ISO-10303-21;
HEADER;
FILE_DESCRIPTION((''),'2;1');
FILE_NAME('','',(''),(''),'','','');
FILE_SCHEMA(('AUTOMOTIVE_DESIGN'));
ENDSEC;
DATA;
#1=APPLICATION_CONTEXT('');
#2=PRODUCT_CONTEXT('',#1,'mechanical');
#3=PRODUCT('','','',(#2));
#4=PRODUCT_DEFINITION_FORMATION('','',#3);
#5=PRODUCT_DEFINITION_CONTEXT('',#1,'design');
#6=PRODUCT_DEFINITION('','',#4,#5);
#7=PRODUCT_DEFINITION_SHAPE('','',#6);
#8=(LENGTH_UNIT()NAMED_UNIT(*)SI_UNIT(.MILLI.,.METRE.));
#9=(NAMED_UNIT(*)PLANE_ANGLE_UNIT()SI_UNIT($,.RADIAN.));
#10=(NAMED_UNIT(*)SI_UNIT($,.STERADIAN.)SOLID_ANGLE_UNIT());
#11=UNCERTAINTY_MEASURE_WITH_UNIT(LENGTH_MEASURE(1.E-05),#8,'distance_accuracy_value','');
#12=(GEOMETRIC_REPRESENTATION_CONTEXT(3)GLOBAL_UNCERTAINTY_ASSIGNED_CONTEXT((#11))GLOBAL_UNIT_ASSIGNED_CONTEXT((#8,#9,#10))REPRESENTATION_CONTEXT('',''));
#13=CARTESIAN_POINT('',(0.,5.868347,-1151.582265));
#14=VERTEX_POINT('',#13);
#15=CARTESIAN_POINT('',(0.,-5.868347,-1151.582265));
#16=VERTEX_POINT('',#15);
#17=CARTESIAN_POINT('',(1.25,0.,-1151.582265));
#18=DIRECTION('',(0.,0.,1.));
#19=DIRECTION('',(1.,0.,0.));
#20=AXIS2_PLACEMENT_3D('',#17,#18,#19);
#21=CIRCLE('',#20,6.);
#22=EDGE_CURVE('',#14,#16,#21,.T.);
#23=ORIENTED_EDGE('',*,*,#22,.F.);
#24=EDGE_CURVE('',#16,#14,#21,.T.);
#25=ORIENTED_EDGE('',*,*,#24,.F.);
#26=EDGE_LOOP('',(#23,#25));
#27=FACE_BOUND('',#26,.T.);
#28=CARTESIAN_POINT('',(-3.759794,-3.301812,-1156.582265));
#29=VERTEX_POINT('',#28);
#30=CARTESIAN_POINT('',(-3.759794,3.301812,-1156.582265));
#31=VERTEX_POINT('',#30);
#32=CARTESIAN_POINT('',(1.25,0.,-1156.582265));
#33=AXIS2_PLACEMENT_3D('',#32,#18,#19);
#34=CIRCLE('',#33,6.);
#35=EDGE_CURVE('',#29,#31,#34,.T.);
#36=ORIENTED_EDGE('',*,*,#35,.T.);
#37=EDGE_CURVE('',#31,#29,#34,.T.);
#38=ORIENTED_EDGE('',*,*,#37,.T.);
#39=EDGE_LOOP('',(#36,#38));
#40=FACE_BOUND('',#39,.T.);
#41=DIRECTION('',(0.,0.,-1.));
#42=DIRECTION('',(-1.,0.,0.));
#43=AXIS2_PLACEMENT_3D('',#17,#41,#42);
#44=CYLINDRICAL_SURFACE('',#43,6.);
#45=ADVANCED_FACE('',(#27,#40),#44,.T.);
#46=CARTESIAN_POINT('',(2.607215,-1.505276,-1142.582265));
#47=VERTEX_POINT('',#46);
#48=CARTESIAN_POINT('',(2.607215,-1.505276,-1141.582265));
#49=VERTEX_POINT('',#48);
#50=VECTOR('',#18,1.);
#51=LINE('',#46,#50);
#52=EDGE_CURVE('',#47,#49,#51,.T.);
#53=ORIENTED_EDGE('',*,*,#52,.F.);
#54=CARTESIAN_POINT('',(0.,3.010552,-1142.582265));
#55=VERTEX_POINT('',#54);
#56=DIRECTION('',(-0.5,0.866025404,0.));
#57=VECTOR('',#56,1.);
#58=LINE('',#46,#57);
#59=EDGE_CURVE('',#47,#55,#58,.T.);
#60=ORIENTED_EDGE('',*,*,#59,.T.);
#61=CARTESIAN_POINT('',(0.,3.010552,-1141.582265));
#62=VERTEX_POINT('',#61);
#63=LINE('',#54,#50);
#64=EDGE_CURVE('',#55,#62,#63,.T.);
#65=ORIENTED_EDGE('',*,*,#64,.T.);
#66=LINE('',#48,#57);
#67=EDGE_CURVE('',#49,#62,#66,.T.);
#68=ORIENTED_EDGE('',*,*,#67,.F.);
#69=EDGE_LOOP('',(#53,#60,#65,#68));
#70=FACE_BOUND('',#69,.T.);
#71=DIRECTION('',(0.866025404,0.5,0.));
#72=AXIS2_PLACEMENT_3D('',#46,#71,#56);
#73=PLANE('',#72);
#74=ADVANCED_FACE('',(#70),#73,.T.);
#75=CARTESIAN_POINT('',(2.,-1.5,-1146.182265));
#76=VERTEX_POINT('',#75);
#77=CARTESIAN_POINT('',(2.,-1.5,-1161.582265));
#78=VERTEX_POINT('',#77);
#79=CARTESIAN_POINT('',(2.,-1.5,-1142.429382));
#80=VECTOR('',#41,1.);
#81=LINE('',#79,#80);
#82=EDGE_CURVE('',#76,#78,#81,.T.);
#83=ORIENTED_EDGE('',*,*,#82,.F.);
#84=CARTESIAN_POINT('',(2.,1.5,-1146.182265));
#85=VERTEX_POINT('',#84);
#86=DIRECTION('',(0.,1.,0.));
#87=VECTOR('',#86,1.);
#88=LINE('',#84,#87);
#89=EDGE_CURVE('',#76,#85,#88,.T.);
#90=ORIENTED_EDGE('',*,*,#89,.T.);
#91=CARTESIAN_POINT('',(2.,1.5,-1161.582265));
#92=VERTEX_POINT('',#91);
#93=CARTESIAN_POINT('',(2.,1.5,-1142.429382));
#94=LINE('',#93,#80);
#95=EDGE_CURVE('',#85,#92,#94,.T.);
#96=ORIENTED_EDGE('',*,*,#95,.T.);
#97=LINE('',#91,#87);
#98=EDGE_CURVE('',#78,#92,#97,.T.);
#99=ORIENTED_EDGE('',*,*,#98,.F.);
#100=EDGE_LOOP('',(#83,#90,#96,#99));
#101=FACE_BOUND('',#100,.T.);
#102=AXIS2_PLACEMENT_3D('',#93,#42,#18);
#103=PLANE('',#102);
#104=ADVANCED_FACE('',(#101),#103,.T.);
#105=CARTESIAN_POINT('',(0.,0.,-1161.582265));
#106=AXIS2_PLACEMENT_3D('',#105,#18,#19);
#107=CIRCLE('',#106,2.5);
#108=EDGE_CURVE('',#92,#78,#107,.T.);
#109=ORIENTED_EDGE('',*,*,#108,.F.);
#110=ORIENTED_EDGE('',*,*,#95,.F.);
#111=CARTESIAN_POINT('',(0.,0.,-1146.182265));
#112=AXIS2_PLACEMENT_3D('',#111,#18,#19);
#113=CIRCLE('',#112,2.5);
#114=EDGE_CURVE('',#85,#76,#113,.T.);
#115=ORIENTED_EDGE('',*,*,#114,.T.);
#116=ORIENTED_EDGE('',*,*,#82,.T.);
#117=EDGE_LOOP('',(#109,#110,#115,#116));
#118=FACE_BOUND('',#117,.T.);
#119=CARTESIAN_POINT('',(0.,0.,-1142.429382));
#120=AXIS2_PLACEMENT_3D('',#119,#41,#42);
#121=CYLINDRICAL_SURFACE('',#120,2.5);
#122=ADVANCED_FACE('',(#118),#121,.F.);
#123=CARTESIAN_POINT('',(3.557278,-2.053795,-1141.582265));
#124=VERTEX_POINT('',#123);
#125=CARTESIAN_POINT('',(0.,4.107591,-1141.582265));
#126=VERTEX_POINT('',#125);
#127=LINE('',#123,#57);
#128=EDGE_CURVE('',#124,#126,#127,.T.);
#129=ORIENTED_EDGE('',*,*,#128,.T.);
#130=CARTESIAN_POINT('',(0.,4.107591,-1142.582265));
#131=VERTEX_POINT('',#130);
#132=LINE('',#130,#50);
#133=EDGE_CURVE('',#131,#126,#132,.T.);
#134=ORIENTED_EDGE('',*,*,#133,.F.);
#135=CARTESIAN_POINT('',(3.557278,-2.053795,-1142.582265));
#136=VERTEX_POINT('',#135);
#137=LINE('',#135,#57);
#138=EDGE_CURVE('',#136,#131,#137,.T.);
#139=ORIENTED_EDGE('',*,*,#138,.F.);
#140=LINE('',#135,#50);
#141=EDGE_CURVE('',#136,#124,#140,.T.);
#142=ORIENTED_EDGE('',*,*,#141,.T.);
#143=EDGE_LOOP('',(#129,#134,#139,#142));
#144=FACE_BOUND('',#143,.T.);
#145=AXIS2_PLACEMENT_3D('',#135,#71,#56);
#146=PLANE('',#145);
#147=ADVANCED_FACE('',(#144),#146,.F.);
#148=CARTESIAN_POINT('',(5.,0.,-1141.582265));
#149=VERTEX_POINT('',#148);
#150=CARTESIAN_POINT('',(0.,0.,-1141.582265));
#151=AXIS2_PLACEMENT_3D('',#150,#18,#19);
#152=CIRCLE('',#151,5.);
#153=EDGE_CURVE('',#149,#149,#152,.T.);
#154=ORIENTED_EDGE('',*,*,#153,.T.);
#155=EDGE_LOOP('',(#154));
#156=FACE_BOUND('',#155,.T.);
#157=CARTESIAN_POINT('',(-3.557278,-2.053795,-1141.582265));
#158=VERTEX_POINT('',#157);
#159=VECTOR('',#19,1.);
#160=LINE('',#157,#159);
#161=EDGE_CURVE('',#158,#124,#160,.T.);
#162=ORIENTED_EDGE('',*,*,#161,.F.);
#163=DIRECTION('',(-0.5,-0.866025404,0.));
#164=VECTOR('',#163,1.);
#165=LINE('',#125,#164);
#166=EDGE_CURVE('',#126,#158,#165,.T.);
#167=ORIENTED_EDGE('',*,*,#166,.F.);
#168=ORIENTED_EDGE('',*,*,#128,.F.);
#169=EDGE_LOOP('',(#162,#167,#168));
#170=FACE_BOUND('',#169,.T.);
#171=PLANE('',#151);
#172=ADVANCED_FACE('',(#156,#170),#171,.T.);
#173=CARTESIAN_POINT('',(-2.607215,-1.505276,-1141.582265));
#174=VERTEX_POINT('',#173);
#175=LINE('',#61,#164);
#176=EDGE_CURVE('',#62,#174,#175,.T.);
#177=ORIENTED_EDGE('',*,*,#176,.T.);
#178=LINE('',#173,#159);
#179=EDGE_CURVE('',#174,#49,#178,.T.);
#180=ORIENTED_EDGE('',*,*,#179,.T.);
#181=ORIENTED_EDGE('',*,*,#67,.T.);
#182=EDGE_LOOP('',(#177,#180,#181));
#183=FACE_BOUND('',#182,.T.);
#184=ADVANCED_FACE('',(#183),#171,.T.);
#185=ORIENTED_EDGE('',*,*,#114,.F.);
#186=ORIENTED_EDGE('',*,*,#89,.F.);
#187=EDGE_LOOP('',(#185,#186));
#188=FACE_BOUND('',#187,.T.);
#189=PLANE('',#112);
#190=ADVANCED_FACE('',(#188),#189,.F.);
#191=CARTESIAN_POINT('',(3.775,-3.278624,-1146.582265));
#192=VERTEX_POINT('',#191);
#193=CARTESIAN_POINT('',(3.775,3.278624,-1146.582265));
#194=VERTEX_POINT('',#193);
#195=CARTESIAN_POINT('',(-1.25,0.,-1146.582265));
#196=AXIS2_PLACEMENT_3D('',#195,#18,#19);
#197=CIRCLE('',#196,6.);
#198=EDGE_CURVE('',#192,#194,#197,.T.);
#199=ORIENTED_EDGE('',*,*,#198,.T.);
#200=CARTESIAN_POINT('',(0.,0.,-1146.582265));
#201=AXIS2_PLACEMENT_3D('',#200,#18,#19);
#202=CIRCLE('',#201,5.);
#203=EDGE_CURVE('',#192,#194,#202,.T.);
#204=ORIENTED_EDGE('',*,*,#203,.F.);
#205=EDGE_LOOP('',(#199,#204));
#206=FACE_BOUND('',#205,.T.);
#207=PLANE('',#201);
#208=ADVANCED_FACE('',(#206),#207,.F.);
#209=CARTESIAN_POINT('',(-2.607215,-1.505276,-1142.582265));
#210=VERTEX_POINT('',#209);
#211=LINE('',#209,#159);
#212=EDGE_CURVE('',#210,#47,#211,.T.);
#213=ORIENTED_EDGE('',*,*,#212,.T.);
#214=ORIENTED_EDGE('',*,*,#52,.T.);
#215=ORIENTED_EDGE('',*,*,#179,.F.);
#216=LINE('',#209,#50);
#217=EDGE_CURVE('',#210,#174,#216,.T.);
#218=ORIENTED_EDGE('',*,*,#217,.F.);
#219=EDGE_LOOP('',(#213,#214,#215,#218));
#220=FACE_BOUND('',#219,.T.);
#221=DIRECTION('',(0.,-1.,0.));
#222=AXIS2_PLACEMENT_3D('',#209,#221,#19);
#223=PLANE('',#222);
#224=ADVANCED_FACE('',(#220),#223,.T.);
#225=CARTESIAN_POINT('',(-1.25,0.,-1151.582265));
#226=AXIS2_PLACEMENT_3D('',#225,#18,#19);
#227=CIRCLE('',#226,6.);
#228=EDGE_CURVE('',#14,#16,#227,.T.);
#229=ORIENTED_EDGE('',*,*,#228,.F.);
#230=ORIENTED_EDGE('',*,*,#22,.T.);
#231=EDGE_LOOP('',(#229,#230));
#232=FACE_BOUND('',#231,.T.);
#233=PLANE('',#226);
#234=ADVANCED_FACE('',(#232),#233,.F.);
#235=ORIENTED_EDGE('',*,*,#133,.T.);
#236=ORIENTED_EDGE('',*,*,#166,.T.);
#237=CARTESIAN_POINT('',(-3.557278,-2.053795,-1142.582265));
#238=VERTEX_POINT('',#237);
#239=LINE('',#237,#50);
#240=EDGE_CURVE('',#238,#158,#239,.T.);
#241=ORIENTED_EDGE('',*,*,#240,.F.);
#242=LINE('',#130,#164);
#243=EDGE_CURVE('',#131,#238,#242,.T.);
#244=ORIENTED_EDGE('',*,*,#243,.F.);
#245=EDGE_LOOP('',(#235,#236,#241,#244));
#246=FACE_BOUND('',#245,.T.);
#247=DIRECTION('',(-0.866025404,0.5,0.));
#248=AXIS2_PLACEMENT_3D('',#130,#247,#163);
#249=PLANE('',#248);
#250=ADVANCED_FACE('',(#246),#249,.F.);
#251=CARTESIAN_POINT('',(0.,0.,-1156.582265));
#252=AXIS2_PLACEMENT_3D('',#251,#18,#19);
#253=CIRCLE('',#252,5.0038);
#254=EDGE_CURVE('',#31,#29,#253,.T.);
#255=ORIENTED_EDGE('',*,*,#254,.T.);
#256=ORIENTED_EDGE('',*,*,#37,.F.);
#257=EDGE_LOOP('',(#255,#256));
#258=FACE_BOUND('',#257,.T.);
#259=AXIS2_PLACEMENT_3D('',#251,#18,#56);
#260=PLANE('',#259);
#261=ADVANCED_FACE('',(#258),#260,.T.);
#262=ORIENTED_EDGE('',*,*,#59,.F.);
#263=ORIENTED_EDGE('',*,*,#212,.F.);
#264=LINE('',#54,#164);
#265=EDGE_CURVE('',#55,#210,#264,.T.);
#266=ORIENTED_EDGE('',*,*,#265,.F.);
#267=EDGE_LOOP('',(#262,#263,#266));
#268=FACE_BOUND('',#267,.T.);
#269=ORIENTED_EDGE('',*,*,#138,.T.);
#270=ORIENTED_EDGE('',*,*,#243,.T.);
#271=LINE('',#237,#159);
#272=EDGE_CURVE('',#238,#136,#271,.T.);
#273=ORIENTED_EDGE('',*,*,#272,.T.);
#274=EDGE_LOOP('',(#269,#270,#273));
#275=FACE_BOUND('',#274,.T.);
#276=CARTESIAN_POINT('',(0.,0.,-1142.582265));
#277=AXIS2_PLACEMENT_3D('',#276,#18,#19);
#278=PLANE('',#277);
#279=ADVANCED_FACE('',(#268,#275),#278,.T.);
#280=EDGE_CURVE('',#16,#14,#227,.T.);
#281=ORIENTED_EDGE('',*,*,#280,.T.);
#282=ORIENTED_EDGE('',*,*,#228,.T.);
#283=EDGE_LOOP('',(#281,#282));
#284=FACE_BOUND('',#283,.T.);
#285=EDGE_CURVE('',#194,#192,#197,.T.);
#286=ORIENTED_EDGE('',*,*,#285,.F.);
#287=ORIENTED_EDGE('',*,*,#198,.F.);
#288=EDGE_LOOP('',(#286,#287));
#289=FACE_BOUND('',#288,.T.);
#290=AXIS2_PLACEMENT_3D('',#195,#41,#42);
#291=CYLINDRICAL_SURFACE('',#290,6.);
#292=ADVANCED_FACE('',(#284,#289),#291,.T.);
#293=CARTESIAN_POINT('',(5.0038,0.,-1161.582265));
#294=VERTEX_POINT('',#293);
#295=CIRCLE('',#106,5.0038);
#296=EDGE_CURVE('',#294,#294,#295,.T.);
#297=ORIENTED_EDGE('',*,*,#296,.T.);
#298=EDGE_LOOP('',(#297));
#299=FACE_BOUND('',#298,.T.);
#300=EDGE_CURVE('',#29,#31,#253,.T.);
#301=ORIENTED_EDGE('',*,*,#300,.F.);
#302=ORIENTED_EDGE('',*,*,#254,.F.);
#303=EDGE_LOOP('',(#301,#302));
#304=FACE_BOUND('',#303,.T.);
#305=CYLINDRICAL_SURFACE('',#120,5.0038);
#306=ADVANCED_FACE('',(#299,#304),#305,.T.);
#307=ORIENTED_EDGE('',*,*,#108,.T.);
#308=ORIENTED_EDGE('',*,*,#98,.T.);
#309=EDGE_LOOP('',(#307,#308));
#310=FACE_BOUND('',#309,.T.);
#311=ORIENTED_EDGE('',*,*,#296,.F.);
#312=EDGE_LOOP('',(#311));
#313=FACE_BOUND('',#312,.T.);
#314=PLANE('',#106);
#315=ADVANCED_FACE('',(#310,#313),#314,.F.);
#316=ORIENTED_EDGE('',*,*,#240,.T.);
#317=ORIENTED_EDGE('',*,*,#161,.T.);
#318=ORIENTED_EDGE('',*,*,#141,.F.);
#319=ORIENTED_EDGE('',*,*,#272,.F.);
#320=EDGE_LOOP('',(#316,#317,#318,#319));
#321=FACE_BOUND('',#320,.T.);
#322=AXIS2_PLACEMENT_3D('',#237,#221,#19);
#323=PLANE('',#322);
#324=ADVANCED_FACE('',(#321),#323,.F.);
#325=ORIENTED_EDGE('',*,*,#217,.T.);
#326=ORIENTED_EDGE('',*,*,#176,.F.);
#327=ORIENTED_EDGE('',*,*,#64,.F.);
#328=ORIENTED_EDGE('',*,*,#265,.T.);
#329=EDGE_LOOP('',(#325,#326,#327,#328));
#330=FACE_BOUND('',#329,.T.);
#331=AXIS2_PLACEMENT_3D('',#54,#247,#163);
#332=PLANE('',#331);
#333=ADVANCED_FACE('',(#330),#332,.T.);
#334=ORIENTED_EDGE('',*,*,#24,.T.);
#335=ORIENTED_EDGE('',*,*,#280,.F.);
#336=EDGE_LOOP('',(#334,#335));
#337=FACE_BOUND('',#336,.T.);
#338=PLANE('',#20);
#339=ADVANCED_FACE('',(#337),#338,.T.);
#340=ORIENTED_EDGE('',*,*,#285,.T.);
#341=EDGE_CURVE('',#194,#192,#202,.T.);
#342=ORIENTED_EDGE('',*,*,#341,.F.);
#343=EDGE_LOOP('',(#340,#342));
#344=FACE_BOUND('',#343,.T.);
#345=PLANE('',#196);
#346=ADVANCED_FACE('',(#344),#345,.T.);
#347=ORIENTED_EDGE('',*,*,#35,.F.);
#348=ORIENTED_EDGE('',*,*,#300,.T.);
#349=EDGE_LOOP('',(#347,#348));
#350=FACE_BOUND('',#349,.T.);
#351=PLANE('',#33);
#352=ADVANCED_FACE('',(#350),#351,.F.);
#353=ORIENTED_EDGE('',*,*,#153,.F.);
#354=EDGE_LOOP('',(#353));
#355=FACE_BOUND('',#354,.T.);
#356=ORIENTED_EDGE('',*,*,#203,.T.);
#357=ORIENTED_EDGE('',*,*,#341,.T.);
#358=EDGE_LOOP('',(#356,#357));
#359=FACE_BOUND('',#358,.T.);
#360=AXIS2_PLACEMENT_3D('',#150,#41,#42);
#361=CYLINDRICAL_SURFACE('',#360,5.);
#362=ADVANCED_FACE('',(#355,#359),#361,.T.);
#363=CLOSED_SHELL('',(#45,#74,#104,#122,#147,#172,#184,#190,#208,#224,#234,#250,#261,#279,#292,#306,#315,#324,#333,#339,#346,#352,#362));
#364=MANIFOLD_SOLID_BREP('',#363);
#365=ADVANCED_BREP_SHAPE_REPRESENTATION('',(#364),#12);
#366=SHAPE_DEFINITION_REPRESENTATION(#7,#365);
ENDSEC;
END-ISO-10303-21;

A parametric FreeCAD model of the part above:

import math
import FreeCAD as App
import Part
import Sketcher
from FreeCAD import Vector
Q = App.Units.Quantity

doc = App.newDocument("Part")
params = doc.addObject("Spreadsheet::Sheet", "Params")
for row, (alias, value) in enumerate([
    ("sketch1_radius", "2.5 mm"),
    ("sketch1_height", "3 mm"),
    ("pad1_length", "5 mm"),
    ("sketch2_diameter", "12 mm"),
    ("sketch2_radius", "2.5 mm"),
    ("sketch2_height", "3 mm"),
    ("pad2_length", "5 mm"),
    ("sketch3_diameter", "12 mm"),
    ("sketch3_radius", "2.5 mm"),
    ("sketch3_height", "3 mm"),
    ("pad3_length", "5 mm"),
    ("sketch4_diameter", "10 mm"),
    ("sketch4_radius", "2.5 mm"),
    ("sketch4_height", "3 mm"),
    ("pad4_length", "5 mm"),
    ("pad5_length", "4.6 mm"),
    ("pocket1_length", "1 mm"),
], start=1):
    params.set(f"A{row}", alias)
    params.set(f"B{row}", "=" + value)
    params.setAlias(f"B{row}", alias)

body = doc.addObject("PartDesign::Body", "Body")

# Sketch on XY plane
sketch1 = body.newObject("Sketcher::SketchObject", "Sketch")
sketch1.AttachmentSupport = (doc.getObject("XY_Plane"), [""])
sketch1.MapMode = "FlatFace"
sketch1.AttachmentOffset = App.Placement(Vector(0, 0, -1161.582265), App.Rotation())
sketch1.addGeometry(Part.Circle(Vector(0, 0, 0), Vector(0, 0, 1), 5), False)
sketch1.addGeometry(Part.ArcOfCircle(Part.Circle(Vector(0, 0, 0), Vector(0, 0, 1), 2.5), math.radians(37), math.radians(323)), False)
sketch1.addGeometry(Part.LineSegment(Vector(2, 1.5, 0), Vector(2, -1.5, 0)), False)
sketch1.addConstraint(Sketcher.Constraint("Coincident", 1, 1, 2, 1))
sketch1.addConstraint(Sketcher.Constraint("Coincident", 2, 2, 1, 2))
sketch1.addConstraint(Sketcher.Constraint("Vertical", 2))
sketch1.addConstraint(Sketcher.Constraint("Coincident", 0, 3, -1, 1))
sketch1.addConstraint(Sketcher.Constraint("Coincident", 1, 3, -1, 1))
sketch1.addConstraint(Sketcher.Constraint("Radius", 1, 2.5))
sketch1.addConstraint(Sketcher.Constraint("DistanceY", 2, 2, 2, 1, 3.0))
sketch1.addConstraint(Sketcher.Constraint("Diameter", 0, 10.0076))
sketch1.setExpression("Constraints[5]", "Params.sketch1_radius")
sketch1.setExpression("Constraints[6]", "Params.sketch1_height")
pad1 = body.newObject("PartDesign::Pad", "Pad")
pad1.Profile = sketch1
pad1.setExpression("Length", "Params.pad1_length")

# Sketch on XY plane
sketch2 = body.newObject("Sketcher::SketchObject", "Sketch001")
sketch2.AttachmentSupport = (doc.getObject("XY_Plane"), [""])
sketch2.MapMode = "FlatFace"
sketch2.AttachmentOffset = App.Placement(Vector(0, 0, -1156.582265), App.Rotation())
sketch2.addGeometry(Part.Circle(Vector(1.2, 0, 0), Vector(0, 0, 1), 6), False)
sketch2.addGeometry(Part.ArcOfCircle(Part.Circle(Vector(0, 0, 0), Vector(0, 0, 1), 2.5), math.radians(37), math.radians(323)), False)
sketch2.addGeometry(Part.LineSegment(Vector(2, 1.5, 0), Vector(2, -1.5, 0)), False)
sketch2.addConstraint(Sketcher.Constraint("Coincident", 1, 1, 2, 1))
sketch2.addConstraint(Sketcher.Constraint("Coincident", 2, 2, 1, 2))
sketch2.addConstraint(Sketcher.Constraint("Vertical", 2))
sketch2.addConstraint(Sketcher.Constraint("Coincident", 1, 3, -1, 1))
sketch2.addConstraint(Sketcher.Constraint("PointOnObject", 0, 3, -1))
sketch2.addConstraint(Sketcher.Constraint("Diameter", 0, 12.0))
sketch2.addConstraint(Sketcher.Constraint("Radius", 1, 2.5))
sketch2.addConstraint(Sketcher.Constraint("DistanceY", 2, 2, 2, 1, 3.0))
sketch2.addConstraint(Sketcher.Constraint("DistanceX", -1, 1, 0, 3, 1.25))
sketch2.setExpression("Constraints[5]", "Params.sketch2_diameter")
sketch2.setExpression("Constraints[6]", "Params.sketch2_radius")
sketch2.setExpression("Constraints[7]", "Params.sketch2_height")
pad2 = body.newObject("PartDesign::Pad", "Pad001")
pad2.Profile = sketch2
pad2.setExpression("Length", "Params.pad2_length")

# Sketch on XY plane
sketch3 = body.newObject("Sketcher::SketchObject", "Sketch002")
sketch3.AttachmentSupport = (doc.getObject("XY_Plane"), [""])
sketch3.MapMode = "FlatFace"
sketch3.AttachmentOffset = App.Placement(Vector(0, 0, -1151.582265), App.Rotation())
sketch3.addGeometry(Part.Circle(Vector(-1.2, 0, 0), Vector(0, 0, 1), 6), False)
sketch3.addGeometry(Part.ArcOfCircle(Part.Circle(Vector(0, 0, 0), Vector(0, 0, 1), 2.5), math.radians(37), math.radians(323)), False)
sketch3.addGeometry(Part.LineSegment(Vector(2, 1.5, 0), Vector(2, -1.5, 0)), False)
sketch3.addConstraint(Sketcher.Constraint("Coincident", 1, 1, 2, 1))
sketch3.addConstraint(Sketcher.Constraint("Coincident", 2, 2, 1, 2))
sketch3.addConstraint(Sketcher.Constraint("Vertical", 2))
sketch3.addConstraint(Sketcher.Constraint("Coincident", 1, 3, -1, 1))
sketch3.addConstraint(Sketcher.Constraint("PointOnObject", 0, 3, -1))
sketch3.addConstraint(Sketcher.Constraint("Diameter", 0, 12.0))
sketch3.addConstraint(Sketcher.Constraint("Radius", 1, 2.5))
sketch3.addConstraint(Sketcher.Constraint("DistanceY", 2, 2, 2, 1, 3.0))
sketch3.addConstraint(Sketcher.Constraint("DistanceX", 0, 3, -1, 1, 1.25))
sketch3.setExpression("Constraints[5]", "Params.sketch3_diameter")
sketch3.setExpression("Constraints[6]", "Params.sketch3_radius")
sketch3.setExpression("Constraints[7]", "Params.sketch3_height")
pad3 = body.newObject("PartDesign::Pad", "Pad002")
pad3.Profile = sketch3
pad3.setExpression("Length", "Params.pad3_length")

# Sketch on XY plane
sketch4 = body.newObject("Sketcher::SketchObject", "Sketch003")
sketch4.AttachmentSupport = (doc.getObject("XY_Plane"), [""])
sketch4.MapMode = "FlatFace"
sketch4.AttachmentOffset = App.Placement(Vector(0, 0, -1146.582265), App.Rotation())
sketch4.addGeometry(Part.Circle(Vector(0, 0, 0), Vector(0, 0, 1), 5), False)
sketch4.addGeometry(Part.ArcOfCircle(Part.Circle(Vector(0, 0, 0), Vector(0, 0, 1), 2.5), math.radians(37), math.radians(323)), False)
sketch4.addGeometry(Part.LineSegment(Vector(2, 1.5, 0), Vector(2, -1.5, 0)), False)
sketch4.addConstraint(Sketcher.Constraint("Coincident", 1, 1, 2, 1))
sketch4.addConstraint(Sketcher.Constraint("Coincident", 2, 2, 1, 2))
sketch4.addConstraint(Sketcher.Constraint("Vertical", 2))
sketch4.addConstraint(Sketcher.Constraint("Coincident", 0, 3, -1, 1))
sketch4.addConstraint(Sketcher.Constraint("Coincident", 1, 3, -1, 1))
sketch4.addConstraint(Sketcher.Constraint("Diameter", 0, 10.0))
sketch4.addConstraint(Sketcher.Constraint("Radius", 1, 2.5))
sketch4.addConstraint(Sketcher.Constraint("DistanceY", 2, 2, 2, 1, 3.0))
sketch4.setExpression("Constraints[5]", "Params.sketch4_diameter")
sketch4.setExpression("Constraints[6]", "Params.sketch4_radius")
sketch4.setExpression("Constraints[7]", "Params.sketch4_height")
pad4 = body.newObject("PartDesign::Pad", "Pad003")
pad4.Profile = sketch4
pad4.setExpression("Length", "Params.pad4_length")

# Sketch on XY plane
sketch5 = body.newObject("Sketcher::SketchObject", "Sketch004")
sketch5.AttachmentSupport = (doc.getObject("XY_Plane"), [""])
sketch5.MapMode = "FlatFace"
sketch5.AttachmentOffset = App.Placement(Vector(0, 0, -1146.182265), App.Rotation())
sketch5.addGeometry(Part.Circle(Vector(0, 0, 0), Vector(0, 0, 1), 2.7), False)
sketch5.addConstraint(Sketcher.Constraint("Coincident", 0, 3, -1, 1))
sketch5.addConstraint(Sketcher.Constraint("Diameter", 0, 5.396216))
pad5 = body.newObject("PartDesign::Pad", "Pad004")
pad5.Profile = sketch5
pad5.setExpression("Length", "Params.pad5_length")

# Sketch on XY plane
sketch6 = body.newObject("Sketcher::SketchObject", "Sketch005")
sketch6.AttachmentSupport = (doc.getObject("XY_Plane"), [""])
sketch6.MapMode = "FlatFace"
sketch6.AttachmentOffset = App.Placement(Vector(0, 0, -1141.582265), App.Rotation())
sketch6.addGeometry(Part.LineSegment(Vector(0, 4, 0), Vector(-4, -2, 0)), False)
sketch6.addGeometry(Part.LineSegment(Vector(-4, -2, 0), Vector(4, -2, 0)), False)
sketch6.addGeometry(Part.LineSegment(Vector(4, -2, 0), Vector(0, 4, 0)), False)
sketch6.addGeometry(Part.LineSegment(Vector(-3, -2, 0), Vector(0, 3, 0)), False)
sketch6.addGeometry(Part.LineSegment(Vector(0, 3, 0), Vector(3, -2, 0)), False)
sketch6.addGeometry(Part.LineSegment(Vector(3, -2, 0), Vector(-3, -2, 0)), False)
sketch6.addConstraint(Sketcher.Constraint("Coincident", 0, 2, 1, 1))
sketch6.addConstraint(Sketcher.Constraint("Coincident", 1, 2, 2, 1))
sketch6.addConstraint(Sketcher.Constraint("Coincident", 2, 2, 0, 1))
sketch6.addConstraint(Sketcher.Constraint("Coincident", 3, 2, 4, 1))
sketch6.addConstraint(Sketcher.Constraint("Coincident", 4, 2, 5, 1))
sketch6.addConstraint(Sketcher.Constraint("Coincident", 5, 2, 3, 1))
sketch6.addConstraint(Sketcher.Constraint("Horizontal", 1))
sketch6.addConstraint(Sketcher.Constraint("Horizontal", 5))
sketch6.addConstraint(Sketcher.Constraint("PointOnObject", 2, 2, -2))
sketch6.addConstraint(Sketcher.Constraint("PointOnObject", 3, 2, -2))
sketch6.addConstraint(Sketcher.Constraint("Parallel", 0, 3))
sketch6.addConstraint(Sketcher.Constraint("Parallel", 2, 4))
sketch6.addConstraint(Sketcher.Constraint("Equal", 0, 2))
sketch6.addConstraint(Sketcher.Constraint("Angle", 0, Q("-120 deg")))
sketch6.addConstraint(Sketcher.Constraint("DistanceX", 5, 2, 5, 1, 5.214429))
sketch6.addConstraint(Sketcher.Constraint("DistanceX", 1, 1, 1, 2, 7.114556))
sketch6.addConstraint(Sketcher.Constraint("DistanceY", -1, 1, 2, 2, 4.107591))
sketch6.addConstraint(Sketcher.Constraint("DistanceY", 3, 2, 2, 2, 1.097039))
pocket1 = body.newObject("PartDesign::Pocket", "Pocket")
pocket1.Profile = sketch6
pocket1.setExpression("Length", "Params.pocket1_length")

doc.recompute()
